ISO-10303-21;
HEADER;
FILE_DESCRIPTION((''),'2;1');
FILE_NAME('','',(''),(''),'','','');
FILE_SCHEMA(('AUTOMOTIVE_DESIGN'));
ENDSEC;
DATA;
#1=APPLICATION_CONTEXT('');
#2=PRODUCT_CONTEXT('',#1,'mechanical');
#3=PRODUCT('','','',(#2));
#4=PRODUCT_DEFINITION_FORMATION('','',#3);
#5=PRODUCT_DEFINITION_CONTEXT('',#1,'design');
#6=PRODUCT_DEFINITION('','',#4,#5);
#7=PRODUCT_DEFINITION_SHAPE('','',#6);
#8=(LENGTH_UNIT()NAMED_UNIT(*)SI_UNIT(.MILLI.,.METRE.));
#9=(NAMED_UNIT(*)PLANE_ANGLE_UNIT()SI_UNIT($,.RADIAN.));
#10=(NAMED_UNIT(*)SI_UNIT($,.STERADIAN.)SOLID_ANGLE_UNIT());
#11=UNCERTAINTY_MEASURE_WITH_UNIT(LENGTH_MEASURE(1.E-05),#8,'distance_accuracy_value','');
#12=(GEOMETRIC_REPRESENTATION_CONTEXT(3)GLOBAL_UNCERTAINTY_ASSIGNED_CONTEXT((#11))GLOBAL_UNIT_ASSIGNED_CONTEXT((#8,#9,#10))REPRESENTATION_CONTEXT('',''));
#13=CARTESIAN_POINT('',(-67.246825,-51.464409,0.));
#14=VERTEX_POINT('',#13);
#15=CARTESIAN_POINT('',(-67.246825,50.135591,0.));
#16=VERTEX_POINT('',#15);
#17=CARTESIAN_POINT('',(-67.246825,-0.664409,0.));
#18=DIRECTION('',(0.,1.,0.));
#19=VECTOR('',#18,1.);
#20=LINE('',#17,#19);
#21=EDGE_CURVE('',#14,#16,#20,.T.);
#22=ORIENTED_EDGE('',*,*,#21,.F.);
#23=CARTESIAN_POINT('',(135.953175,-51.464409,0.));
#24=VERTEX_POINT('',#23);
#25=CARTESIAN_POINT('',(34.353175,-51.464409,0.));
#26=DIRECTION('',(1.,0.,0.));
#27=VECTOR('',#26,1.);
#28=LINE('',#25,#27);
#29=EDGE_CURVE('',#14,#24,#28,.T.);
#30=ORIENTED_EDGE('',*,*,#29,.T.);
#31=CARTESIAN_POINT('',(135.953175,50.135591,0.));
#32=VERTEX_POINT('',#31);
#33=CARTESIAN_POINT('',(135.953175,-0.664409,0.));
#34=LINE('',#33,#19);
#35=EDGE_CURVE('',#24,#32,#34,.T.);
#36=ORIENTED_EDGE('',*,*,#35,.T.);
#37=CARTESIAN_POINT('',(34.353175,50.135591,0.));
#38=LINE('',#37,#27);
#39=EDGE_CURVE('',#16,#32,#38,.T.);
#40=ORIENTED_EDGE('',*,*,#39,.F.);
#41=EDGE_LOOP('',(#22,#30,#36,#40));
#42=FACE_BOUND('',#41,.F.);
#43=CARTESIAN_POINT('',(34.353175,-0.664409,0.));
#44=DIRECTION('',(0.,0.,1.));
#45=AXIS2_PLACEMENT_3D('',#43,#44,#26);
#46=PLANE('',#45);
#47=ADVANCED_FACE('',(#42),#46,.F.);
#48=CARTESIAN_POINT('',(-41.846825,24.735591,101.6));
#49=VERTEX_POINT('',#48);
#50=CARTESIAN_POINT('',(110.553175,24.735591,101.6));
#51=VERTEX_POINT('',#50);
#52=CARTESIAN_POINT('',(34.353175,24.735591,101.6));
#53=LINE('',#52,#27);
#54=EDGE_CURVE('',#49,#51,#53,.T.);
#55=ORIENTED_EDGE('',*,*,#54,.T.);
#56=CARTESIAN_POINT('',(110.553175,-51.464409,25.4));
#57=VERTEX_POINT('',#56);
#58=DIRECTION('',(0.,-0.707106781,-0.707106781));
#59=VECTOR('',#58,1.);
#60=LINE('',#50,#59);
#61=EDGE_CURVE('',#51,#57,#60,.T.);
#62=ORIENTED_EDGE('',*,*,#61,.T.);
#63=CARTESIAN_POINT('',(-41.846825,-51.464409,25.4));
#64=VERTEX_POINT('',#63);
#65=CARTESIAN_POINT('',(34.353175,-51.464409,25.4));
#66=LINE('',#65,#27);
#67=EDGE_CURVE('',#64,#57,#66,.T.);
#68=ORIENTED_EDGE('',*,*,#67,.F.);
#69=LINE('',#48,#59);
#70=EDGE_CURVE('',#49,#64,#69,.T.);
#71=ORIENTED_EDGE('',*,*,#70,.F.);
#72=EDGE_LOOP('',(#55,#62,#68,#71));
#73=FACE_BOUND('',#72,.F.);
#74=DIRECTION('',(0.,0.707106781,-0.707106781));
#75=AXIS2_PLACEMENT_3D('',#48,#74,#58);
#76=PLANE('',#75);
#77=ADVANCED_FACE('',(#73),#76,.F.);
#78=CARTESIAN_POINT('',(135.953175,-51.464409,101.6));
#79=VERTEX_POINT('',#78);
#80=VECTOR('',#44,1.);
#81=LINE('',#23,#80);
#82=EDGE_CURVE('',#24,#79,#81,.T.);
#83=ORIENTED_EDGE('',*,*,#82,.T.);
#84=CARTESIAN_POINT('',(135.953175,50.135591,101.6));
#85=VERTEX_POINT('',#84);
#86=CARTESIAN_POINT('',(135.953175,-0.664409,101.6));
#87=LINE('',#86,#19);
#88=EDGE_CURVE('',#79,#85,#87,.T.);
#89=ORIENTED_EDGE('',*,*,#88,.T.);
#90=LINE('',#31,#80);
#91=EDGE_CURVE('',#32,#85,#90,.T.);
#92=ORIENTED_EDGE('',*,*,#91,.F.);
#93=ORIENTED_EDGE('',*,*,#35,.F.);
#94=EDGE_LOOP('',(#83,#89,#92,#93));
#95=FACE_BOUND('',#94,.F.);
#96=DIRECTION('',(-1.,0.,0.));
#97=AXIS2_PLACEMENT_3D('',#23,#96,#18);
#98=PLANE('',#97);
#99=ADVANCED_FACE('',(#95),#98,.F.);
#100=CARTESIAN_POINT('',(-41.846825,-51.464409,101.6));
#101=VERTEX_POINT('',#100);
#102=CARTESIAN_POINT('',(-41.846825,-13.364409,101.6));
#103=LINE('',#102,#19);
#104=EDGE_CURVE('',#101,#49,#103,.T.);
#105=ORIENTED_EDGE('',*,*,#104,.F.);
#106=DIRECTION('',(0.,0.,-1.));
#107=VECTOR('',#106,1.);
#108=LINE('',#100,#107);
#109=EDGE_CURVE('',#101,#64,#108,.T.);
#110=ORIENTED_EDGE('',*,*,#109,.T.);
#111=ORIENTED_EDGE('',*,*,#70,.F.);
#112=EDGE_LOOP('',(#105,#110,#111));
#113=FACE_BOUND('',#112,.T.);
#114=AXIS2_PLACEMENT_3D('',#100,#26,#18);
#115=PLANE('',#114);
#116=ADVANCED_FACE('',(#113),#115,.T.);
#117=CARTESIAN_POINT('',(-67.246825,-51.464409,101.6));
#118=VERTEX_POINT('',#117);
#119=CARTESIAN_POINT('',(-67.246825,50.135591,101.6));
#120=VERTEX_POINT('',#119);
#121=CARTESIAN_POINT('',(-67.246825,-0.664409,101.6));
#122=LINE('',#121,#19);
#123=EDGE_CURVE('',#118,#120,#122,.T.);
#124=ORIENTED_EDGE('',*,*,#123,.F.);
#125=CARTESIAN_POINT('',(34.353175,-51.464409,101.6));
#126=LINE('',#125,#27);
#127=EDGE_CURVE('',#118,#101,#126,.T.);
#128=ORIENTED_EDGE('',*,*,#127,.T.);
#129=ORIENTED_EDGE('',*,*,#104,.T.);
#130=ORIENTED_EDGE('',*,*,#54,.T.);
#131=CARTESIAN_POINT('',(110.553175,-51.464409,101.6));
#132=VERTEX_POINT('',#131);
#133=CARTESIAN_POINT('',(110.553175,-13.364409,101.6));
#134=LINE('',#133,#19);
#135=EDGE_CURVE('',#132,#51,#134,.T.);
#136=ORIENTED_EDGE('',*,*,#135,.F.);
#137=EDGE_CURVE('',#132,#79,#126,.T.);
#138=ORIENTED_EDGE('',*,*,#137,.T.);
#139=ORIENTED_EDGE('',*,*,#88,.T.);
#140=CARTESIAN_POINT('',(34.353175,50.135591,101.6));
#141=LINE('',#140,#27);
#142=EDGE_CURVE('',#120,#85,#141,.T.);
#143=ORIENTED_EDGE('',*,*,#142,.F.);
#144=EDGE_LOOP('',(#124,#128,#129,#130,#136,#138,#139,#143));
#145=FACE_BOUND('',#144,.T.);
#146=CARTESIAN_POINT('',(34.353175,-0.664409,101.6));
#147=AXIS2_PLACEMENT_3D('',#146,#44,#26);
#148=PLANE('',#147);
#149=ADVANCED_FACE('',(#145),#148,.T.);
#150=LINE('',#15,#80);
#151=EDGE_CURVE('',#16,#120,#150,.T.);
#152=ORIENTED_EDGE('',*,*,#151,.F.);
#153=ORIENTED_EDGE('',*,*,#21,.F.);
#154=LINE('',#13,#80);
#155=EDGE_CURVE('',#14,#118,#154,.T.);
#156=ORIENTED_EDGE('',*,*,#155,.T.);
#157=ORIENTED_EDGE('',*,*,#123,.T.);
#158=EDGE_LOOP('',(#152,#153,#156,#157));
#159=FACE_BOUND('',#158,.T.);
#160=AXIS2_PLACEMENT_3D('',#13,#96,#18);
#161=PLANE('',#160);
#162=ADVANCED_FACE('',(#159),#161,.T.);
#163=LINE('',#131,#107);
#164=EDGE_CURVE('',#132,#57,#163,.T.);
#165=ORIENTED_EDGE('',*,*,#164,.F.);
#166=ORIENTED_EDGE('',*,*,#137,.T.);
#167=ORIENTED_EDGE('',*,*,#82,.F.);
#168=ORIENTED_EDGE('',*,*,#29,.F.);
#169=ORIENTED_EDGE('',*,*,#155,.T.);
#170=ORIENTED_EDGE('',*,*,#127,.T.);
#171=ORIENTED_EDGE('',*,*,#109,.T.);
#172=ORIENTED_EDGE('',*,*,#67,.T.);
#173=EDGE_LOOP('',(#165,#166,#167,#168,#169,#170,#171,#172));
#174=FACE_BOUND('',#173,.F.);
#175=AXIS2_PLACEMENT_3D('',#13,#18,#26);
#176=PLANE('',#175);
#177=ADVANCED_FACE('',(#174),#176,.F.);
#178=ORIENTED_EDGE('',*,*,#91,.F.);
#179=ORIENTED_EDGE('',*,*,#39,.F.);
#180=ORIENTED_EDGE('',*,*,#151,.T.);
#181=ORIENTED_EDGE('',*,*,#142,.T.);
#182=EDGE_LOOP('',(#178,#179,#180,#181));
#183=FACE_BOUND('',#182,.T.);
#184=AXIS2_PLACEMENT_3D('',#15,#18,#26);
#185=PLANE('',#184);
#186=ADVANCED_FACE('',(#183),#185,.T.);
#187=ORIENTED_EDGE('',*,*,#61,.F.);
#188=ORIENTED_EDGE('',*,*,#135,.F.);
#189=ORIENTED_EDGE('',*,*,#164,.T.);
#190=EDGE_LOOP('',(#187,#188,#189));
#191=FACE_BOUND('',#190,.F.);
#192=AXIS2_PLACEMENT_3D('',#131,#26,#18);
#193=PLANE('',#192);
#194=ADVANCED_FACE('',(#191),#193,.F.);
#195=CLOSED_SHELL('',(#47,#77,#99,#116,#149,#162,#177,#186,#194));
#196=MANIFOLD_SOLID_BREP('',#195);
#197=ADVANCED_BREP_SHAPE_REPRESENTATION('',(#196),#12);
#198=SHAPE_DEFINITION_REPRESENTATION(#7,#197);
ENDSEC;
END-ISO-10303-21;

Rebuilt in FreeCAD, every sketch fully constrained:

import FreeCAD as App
import Part
import Sketcher

V = App.Vector
Q = App.Units.Quantity


def add_polygon(sketch, points):
    """Adds a closed chain of lines whose ends are joined by coincident constraints."""
    first, n = sketch.GeometryCount, len(points)
    for a, b in zip(points, points[1:] + points[:1]):
        sketch.addGeometry(Part.LineSegment(App.Vector(*a, 0), App.Vector(*b, 0)), False)
    for i in range(n):
        sketch.addConstraint(Sketcher.Constraint("Coincident", first + i, 2, first + (i + 1) % n, 1))

doc = App.newDocument("Part")
body = doc.addObject("PartDesign::Body", "Body")

# Sketch on XY plane
sketch1 = doc.addObject("Sketcher::SketchObject", "Sketch")
body.addObject(sketch1)
sketch1.AttachmentSupport = (doc.XY_Plane, [""])
sketch1.MapMode = "FlatFace"
add_polygon(sketch1, [(-67, 50), (-67, -51), (136, -51), (136, 50)])  # lines 0-3
sketch1.addConstraint([
    Sketcher.Constraint("Vertical", 0),
    Sketcher.Constraint("Horizontal", 1),
    Sketcher.Constraint("Vertical", 2),
    Sketcher.Constraint("Horizontal", 3),
    Sketcher.Constraint("DistanceX", 1, 1, 1, 2, Q("8 in")),
    Sketcher.Constraint("DistanceY", 0, 2, 0, 1, Q("4 in")),
    Sketcher.Constraint("DistanceY", 0, 2, -1, 1, 51.464409),
    Sketcher.Constraint("DistanceX", 0, 2, -1, 1, 67.246825),
])
pad1 = doc.addObject("PartDesign::Pad", "Pad")
body.addObject(pad1)
pad1.Profile = sketch1
pad1.Length = Q("4 in")

# Sketch on XY plane
sketch2 = doc.addObject("Sketcher::SketchObject", "Sketch001")
body.addObject(sketch2)
sketch2.AttachmentSupport = (doc.XY_Plane, [""])
sketch2.MapMode = "FlatFace"
sketch2.AttachmentOffset = App.Placement(V(0, 0, 4 * 25.4), App.Rotation())
add_polygon(sketch2, [(-42, 25), (-42, -51), (111, -51), (111, 25)])  # lines 0-3
sketch2.addConstraint([
    Sketcher.Constraint("Vertical", 0),
    Sketcher.Constraint("Horizontal", 1),
    Sketcher.Constraint("Vertical", 2),
    Sketcher.Constraint("Horizontal", 3),
    Sketcher.Constraint("DistanceX", 1, 1, 1, 2, Q("6 in")),
    Sketcher.Constraint("DistanceY", 0, 2, 0, 1, Q("3 in")),
    Sketcher.Constraint("DistanceY", 0, 2, -1, 1, 51.464409),
    Sketcher.Constraint("DistanceX", 0, 2, -1, 1, 41.846825),
])
pocket1 = doc.addObject("PartDesign::Pocket", "Pocket")
body.addObject(pocket1)
pocket1.Profile = sketch2
pocket1.Length = Q("3 in")

# Sketch on YZ plane
sketch3 = doc.addObject("Sketcher::SketchObject", "Sketch002")
body.addObject(sketch3)
sketch3.AttachmentSupport = (doc.YZ_Plane, [""])
sketch3.MapMode = "FlatFace"
sketch3.AttachmentOffset = App.Placement(V(0, 0, -41.846825), App.Rotation())
add_polygon(sketch3, [(25, 102), (-51, 25), (25, 25)])  # lines 0-2
sketch3.addConstraint([
    Sketcher.Constraint("Horizontal", 1),
    Sketcher.Constraint("Vertical", 2),
    Sketcher.Constraint("Equal", 1, 2),
    Sketcher.Constraint("DistanceX", 1, 1, 1, 2, Q("3 in")),
    Sketcher.Constraint("DistanceY", -1, 1, 0, 2, Q("1 in")),
    Sketcher.Constraint("DistanceX", 0, 2, -1, 1, 51.464409),
])
pad2 = doc.addObject("PartDesign::Pad", "Pad001")
body.addObject(pad2)
pad2.Profile = sketch3
pad2.Length = Q("6 in")

doc.recompute()
